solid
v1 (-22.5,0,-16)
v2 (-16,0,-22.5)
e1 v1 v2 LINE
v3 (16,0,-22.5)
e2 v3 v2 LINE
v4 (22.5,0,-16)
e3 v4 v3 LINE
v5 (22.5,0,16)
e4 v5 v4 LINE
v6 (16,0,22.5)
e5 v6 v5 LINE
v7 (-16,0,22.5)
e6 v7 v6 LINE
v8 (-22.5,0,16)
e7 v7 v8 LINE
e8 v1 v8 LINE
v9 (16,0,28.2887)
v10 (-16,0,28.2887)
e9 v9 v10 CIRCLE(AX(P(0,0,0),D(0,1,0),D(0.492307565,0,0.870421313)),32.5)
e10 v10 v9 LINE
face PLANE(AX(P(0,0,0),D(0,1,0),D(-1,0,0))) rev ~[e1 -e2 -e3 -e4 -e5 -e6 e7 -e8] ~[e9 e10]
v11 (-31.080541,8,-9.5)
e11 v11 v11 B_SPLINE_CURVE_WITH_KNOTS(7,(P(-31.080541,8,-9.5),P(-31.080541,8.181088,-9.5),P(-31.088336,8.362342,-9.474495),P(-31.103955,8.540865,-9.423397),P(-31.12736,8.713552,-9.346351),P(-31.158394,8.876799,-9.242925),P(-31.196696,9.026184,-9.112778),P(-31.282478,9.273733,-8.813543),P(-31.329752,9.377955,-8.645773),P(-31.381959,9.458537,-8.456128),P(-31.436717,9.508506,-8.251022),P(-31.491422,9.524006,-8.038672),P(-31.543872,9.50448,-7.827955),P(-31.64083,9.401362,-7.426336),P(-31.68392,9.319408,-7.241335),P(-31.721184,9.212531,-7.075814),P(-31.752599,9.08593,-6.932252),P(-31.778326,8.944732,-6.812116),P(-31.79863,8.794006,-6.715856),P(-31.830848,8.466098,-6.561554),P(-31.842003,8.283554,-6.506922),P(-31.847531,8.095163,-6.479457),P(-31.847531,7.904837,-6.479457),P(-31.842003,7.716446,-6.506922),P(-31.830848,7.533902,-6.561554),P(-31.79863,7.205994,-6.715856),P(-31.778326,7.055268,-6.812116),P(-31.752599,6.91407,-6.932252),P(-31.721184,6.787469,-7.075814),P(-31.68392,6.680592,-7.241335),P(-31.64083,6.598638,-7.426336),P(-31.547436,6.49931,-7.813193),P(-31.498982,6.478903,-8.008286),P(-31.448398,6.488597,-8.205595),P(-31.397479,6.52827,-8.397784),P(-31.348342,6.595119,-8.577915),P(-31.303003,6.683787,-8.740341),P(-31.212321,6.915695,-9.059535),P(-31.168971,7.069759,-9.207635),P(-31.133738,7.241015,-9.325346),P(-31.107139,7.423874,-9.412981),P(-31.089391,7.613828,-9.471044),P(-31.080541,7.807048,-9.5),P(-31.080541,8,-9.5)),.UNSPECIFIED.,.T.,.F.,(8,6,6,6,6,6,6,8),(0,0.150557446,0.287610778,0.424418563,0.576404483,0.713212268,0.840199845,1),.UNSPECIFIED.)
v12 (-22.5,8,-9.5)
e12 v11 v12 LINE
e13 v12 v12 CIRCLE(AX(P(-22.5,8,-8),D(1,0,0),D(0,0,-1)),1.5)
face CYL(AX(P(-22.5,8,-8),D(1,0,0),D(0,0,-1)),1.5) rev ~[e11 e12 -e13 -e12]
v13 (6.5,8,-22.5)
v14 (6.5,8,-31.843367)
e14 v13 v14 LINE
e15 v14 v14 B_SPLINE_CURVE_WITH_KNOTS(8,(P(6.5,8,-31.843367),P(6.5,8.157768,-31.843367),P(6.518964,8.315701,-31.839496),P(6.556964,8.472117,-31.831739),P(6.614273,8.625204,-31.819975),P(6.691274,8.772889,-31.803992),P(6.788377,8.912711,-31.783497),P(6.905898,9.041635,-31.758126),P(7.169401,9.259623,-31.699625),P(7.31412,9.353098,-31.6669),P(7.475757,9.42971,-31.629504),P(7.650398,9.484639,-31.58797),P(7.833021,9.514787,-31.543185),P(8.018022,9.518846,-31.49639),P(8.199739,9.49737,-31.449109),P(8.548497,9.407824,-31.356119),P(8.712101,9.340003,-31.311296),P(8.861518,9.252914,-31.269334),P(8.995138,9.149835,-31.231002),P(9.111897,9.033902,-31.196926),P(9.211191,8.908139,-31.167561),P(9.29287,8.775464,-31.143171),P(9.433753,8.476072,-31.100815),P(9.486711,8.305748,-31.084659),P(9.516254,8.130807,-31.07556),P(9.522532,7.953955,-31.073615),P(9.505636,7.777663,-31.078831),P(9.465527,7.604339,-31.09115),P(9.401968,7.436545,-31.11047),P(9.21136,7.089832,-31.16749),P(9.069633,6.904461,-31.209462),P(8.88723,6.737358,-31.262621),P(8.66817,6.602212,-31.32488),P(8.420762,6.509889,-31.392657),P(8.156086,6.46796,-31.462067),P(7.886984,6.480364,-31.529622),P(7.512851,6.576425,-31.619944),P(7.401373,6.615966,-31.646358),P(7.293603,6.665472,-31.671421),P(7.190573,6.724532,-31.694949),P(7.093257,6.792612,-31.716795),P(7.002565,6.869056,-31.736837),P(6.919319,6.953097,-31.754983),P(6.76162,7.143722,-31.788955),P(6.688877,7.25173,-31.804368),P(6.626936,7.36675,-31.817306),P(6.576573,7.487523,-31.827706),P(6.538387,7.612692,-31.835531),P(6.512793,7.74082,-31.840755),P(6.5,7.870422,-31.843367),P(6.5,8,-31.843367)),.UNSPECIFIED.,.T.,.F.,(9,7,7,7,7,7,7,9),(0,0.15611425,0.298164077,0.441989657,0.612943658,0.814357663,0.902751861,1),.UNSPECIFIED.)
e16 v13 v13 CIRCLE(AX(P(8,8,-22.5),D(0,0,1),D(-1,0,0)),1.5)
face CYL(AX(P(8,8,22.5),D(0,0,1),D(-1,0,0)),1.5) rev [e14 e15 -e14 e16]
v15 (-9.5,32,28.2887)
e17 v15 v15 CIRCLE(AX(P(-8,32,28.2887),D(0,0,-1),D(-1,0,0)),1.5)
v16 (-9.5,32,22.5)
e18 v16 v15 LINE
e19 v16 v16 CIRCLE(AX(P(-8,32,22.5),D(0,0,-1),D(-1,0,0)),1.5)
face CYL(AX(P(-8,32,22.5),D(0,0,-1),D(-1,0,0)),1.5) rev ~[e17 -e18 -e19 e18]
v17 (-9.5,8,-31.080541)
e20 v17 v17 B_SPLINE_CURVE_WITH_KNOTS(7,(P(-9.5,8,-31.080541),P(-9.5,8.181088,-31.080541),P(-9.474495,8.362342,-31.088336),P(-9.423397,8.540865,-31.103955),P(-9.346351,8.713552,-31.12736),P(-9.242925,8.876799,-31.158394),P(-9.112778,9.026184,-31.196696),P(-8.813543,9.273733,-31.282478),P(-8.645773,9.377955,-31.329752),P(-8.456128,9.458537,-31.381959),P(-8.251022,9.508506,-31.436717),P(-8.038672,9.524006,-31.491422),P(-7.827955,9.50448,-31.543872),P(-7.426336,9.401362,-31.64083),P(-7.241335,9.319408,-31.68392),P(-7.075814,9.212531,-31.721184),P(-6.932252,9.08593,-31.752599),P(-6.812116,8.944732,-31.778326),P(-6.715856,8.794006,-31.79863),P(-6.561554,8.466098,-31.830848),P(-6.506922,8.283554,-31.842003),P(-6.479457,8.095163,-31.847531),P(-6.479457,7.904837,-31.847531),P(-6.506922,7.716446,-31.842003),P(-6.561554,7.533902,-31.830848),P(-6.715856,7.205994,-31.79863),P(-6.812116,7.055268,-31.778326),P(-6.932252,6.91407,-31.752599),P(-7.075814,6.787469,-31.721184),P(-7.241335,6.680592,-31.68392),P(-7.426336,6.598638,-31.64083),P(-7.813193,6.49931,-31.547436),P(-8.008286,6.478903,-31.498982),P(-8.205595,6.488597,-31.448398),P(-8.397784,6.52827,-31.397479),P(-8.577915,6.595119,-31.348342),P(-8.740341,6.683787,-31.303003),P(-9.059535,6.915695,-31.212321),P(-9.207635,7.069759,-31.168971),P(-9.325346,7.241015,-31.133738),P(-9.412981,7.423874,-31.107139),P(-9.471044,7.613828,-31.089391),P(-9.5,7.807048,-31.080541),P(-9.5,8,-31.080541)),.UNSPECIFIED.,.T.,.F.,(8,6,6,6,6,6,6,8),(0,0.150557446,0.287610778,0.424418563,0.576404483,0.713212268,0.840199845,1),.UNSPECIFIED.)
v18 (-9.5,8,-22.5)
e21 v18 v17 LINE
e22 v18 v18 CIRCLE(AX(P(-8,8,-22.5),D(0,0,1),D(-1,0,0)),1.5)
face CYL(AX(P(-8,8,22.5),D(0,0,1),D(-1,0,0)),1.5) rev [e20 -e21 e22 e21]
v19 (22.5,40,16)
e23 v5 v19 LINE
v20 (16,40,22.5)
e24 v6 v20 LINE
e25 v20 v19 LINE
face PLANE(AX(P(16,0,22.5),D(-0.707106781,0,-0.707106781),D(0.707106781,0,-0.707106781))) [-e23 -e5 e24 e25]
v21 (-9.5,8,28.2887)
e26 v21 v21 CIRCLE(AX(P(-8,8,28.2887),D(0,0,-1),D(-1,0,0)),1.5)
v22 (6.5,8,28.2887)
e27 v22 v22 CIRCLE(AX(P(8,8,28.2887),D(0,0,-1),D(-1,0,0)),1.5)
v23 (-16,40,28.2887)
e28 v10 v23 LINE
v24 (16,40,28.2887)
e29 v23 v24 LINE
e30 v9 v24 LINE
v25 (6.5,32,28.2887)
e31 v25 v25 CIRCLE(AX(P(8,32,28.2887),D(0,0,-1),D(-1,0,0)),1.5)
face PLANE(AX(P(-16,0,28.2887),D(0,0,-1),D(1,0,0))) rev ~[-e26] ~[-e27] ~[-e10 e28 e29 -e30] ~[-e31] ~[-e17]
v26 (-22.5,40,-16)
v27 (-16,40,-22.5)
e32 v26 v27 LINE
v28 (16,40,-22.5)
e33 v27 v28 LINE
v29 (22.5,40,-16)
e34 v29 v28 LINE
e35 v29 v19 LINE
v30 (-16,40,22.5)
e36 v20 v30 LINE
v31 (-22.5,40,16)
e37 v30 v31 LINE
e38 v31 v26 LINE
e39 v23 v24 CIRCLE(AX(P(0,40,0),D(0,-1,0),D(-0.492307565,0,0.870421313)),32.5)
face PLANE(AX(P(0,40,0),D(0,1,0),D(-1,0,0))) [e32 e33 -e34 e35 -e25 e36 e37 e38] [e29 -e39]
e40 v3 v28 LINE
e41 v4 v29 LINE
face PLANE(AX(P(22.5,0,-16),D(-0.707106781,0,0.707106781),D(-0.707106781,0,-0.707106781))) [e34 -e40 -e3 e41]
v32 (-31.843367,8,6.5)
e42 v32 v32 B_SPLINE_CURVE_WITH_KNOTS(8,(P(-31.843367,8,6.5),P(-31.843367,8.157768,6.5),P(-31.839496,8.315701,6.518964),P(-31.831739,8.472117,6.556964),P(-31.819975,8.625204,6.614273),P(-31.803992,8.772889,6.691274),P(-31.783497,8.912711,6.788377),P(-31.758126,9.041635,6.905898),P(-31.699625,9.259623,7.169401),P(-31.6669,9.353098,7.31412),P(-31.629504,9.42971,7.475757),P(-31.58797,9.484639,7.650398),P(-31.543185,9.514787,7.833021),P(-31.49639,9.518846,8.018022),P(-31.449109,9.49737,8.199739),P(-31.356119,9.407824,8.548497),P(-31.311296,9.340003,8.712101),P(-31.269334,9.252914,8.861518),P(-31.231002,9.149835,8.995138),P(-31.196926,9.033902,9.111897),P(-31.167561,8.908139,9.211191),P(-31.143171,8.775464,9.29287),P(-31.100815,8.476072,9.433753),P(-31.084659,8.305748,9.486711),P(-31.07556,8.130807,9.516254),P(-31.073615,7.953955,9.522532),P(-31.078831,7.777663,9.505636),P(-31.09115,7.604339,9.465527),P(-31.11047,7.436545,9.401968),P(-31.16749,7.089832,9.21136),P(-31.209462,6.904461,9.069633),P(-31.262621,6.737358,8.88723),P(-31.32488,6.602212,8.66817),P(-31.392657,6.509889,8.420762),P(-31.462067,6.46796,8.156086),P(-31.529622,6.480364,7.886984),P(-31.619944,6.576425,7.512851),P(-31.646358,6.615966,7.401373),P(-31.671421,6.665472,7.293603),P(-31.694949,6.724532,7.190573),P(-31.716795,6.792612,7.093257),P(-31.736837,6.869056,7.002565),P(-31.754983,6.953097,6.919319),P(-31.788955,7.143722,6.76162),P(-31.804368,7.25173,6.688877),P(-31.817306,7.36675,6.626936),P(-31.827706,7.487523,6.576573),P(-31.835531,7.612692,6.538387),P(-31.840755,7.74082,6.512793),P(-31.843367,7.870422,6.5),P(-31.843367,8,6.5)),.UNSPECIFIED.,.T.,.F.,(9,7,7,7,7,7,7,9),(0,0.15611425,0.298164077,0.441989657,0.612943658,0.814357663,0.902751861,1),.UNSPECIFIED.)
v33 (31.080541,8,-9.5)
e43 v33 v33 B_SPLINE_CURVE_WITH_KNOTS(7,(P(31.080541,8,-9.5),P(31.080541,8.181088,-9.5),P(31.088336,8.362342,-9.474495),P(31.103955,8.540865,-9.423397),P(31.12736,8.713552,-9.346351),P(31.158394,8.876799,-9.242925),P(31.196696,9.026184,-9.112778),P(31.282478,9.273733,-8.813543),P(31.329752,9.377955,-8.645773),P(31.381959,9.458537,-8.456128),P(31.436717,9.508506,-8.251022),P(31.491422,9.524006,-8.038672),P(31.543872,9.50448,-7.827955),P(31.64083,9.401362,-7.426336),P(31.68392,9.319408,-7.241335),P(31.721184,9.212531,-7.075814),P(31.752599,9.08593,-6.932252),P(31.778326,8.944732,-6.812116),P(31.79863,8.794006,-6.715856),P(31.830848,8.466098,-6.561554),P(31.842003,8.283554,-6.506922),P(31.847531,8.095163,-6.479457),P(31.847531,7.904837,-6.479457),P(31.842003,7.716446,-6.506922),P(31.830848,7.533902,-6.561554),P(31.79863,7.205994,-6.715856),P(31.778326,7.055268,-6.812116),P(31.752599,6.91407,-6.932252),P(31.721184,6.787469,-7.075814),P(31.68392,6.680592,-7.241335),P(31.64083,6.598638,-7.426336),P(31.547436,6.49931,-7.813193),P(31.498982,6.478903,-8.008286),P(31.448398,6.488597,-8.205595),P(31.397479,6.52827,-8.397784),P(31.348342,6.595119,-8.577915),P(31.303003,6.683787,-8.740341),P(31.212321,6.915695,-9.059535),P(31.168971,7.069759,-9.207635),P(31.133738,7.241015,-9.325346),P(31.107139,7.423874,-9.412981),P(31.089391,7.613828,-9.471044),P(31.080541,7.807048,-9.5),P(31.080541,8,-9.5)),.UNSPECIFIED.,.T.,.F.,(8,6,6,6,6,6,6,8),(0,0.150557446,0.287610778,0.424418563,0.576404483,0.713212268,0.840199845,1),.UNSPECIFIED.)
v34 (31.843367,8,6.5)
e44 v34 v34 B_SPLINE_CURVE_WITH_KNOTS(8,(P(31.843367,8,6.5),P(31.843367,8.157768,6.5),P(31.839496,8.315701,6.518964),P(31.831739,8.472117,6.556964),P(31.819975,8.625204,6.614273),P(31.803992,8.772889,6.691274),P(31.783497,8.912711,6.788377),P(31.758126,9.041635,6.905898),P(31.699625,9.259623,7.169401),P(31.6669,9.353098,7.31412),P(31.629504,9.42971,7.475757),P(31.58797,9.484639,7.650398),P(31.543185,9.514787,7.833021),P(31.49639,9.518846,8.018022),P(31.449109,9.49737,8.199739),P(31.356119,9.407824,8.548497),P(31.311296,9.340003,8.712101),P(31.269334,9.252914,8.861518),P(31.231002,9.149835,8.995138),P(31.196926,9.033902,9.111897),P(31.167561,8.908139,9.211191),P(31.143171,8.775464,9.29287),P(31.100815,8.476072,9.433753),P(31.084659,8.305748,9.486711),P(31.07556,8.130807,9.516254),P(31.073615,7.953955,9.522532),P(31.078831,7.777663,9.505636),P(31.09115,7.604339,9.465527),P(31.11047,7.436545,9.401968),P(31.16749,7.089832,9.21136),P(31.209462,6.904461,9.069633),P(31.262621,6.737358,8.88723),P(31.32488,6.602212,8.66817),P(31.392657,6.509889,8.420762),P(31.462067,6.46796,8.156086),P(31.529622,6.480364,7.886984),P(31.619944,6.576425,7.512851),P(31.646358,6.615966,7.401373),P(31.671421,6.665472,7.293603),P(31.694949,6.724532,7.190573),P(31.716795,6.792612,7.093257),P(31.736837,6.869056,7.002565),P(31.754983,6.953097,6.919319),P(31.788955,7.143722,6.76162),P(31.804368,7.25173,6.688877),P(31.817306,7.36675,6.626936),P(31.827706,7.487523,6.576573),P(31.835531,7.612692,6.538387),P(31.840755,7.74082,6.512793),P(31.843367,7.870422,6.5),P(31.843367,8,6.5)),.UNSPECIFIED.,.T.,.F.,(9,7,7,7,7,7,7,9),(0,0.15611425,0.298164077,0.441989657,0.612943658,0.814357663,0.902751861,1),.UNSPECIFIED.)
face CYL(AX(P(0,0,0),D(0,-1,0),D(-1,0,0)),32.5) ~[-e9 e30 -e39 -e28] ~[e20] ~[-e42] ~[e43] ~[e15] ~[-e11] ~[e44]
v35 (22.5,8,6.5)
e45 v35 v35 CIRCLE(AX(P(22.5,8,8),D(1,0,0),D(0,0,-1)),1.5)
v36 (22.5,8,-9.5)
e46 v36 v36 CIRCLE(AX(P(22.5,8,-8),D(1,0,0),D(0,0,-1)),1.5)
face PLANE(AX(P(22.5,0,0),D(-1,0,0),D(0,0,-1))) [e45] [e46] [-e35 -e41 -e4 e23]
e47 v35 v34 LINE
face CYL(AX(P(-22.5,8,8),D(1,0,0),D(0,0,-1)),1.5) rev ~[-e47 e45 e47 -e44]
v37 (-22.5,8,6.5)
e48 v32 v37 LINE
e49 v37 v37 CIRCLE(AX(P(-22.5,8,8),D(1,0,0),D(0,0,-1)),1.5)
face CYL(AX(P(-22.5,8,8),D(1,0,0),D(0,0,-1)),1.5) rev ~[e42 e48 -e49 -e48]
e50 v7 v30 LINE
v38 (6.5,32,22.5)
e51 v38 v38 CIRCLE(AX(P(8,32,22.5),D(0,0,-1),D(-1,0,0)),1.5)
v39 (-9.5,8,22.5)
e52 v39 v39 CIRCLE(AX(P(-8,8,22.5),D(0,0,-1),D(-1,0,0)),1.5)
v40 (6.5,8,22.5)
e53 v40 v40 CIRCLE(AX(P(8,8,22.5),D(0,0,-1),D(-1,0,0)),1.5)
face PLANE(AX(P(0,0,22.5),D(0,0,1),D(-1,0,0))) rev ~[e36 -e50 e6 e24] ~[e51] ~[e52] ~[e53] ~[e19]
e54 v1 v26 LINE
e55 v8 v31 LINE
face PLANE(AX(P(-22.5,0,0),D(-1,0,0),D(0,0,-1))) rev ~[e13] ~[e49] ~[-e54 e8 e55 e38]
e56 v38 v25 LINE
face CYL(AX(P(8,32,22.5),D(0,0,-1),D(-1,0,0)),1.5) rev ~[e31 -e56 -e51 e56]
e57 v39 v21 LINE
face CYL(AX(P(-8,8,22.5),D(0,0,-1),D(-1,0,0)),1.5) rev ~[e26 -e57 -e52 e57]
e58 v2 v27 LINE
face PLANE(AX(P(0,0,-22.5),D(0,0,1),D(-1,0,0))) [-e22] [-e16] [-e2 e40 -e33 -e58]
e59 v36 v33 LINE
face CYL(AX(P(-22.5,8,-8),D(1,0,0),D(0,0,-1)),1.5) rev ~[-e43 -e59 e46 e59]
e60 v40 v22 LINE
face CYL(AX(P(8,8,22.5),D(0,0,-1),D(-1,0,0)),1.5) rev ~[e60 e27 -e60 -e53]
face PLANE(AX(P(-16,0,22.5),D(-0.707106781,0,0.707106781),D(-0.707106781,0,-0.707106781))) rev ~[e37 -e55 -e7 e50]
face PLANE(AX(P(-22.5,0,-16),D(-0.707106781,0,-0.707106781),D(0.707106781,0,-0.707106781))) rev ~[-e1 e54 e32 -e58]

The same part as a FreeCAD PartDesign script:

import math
import FreeCAD as App
import Part
import Sketcher
from FreeCAD import Vector

doc = App.newDocument("Part")
params = doc.addObject("Spreadsheet::Sheet", "Params")
for row, (alias, value) in enumerate([
    ("sketch1_diameter", "65 mm"),
    ("sketch1_width", "32 mm"),
    ("pad1_length", "40 mm"),
    ("sketch2_radius", "32.5 mm"),
    ("sketch2_width", "32 mm"),
    ("pocket1_length", "40 mm"),
    ("sketch3_diameter", "3 mm"),
    ("pocket2_length", "200 mm"),
    ("sketch4_diameter", "3 mm"),
    ("pocket3_length", "200 mm"),
    ("sketch5_diameter", "3 mm"),
    ("pocket4_length", "200 mm"),
], start=1):
    params.set(f"A{row}", alias)
    params.set(f"B{row}", "=" + value)
    params.setAlias(f"B{row}", alias)

body = doc.addObject("PartDesign::Body", "Body")

sketch1 = doc.addObject("Sketcher::SketchObject", "Sketch")
body.addObject(sketch1)
sketch1.AttachmentSupport = (doc.XZ_Plane, [""])
sketch1.MapMode = "FlatFace"
sketch1.addGeometry([
    Part.Circle(Vector(0, 0, 0), Vector(0, 0, 1), 32),
    Part.LineSegment(Vector(-16, -22, 0), Vector(16, -22, 0)),
    Part.LineSegment(Vector(16, -22, 0), Vector(22, -16, 0)),
    Part.LineSegment(Vector(22, -16, 0), Vector(22, 16, 0)),
    Part.LineSegment(Vector(22, 16, 0), Vector(16, 22, 0)),
    Part.LineSegment(Vector(16, 22, 0), Vector(-16, 22, 0)),
    Part.LineSegment(Vector(-16, 22, 0), Vector(-22, 16, 0)),
    Part.LineSegment(Vector(-22, 16, 0), Vector(-22, -16, 0)),
    Part.LineSegment(Vector(-22, -16, 0), Vector(-16, -22, 0)),
], False)
sketch1.addConstraint([
    Sketcher.Constraint("Coincident", 1, 2, 2, 1),
    Sketcher.Constraint("Coincident", 2, 2, 3, 1),
    Sketcher.Constraint("Coincident", 3, 2, 4, 1),
    Sketcher.Constraint("Coincident", 4, 2, 5, 1),
    Sketcher.Constraint("Coincident", 5, 2, 6, 1),
    Sketcher.Constraint("Coincident", 6, 2, 7, 1),
    Sketcher.Constraint("Coincident", 7, 2, 8, 1),
    Sketcher.Constraint("Coincident", 8, 2, 1, 1),
    Sketcher.Constraint("Horizontal", 1),
    Sketcher.Constraint("Vertical", 3),
    Sketcher.Constraint("Horizontal", 5),
    Sketcher.Constraint("Vertical", 7),
    Sketcher.Constraint("Coincident", 0, 3, -1, 1),
    Sketcher.Constraint("Symmetric", 1, 2, 5, 2, -1, 1),
    Sketcher.Constraint("Symmetric", 2, 2, 6, 2, -1, 1),
    Sketcher.Constraint("Perpendicular", 2, 4),
    Sketcher.Constraint("Perpendicular", 6, 8),
    Sketcher.Constraint("Horizontal", 3, 2, 6, 2),
    Sketcher.Constraint("Horizontal", 2, 2, 7, 2),
    Sketcher.Constraint("Vertical", 1, 2, 4, 2),
    Sketcher.Constraint("Equal", 5, 3),
    Sketcher.Constraint("Diameter", 0, 65.0),
    Sketcher.Constraint("DistanceX", 1, 1, 1, 2, 32.0),
    Sketcher.Constraint("DistanceY", 1, 2, 4, 2, 45.0),
])
sketch1.setExpression("Constraints[21]", "Params.sketch1_diameter")
sketch1.setExpression("Constraints[22]", "Params.sketch1_width")
pad1 = doc.addObject("PartDesign::Pad", "Pad")
body.addObject(pad1)
pad1.Profile = sketch1
pad1.setExpression("Length", "Params.pad1_length")
pad1.Reversed = True

sketch2 = doc.addObject("Sketcher::SketchObject", "Sketch001")
body.addObject(sketch2)
sketch2.AttachmentSupport = (doc.XZ_Plane, [""])
sketch2.MapMode = "FlatFace"
sketch2.addGeometry([
    Part.ArcOfCircle(Part.Circle(Vector(0, 0, 0), Vector(0, 0, 1), 33), math.radians(61), math.radians(119)),
    Part.LineSegment(Vector(-16, 28, 0), Vector(16, 28, 0)),
], False)
sketch2.addConstraint([
    Sketcher.Constraint("Coincident", 0, 1, 1, 2),
    Sketcher.Constraint("Coincident", 1, 1, 0, 2),
    Sketcher.Constraint("Horizontal", 1),
    Sketcher.Constraint("Coincident", 0, 3, -1, 1),
    Sketcher.Constraint("Radius", 0, 32.5),
    Sketcher.Constraint("DistanceX", 1, 1, 1, 2, 32.0),
])
sketch2.setExpression("Constraints[4]", "Params.sketch2_radius")
sketch2.setExpression("Constraints[5]", "Params.sketch2_width")
pocket1 = doc.addObject("PartDesign::Pocket", "Pocket")
body.addObject(pocket1)
pocket1.Profile = sketch2
pocket1.setExpression("Length", "Params.pocket1_length")

sketch3 = doc.addObject("Sketcher::SketchObject", "Sketch002")
body.addObject(sketch3)
sketch3.AttachmentSupport = (doc.YZ_Plane, [""])
sketch3.MapMode = "FlatFace"
sketch3.AttachmentOffset = App.Placement(Vector(0, 0, -22.5), App.Rotation())
sketch3.addGeometry([
    Part.Circle(Vector(8, 8, 0), Vector(0, 0, 1), 1.5),
    Part.Circle(Vector(8, -8, 0), Vector(0, 0, 1), 1.5),
], False)
sketch3.addConstraint([
    Sketcher.Constraint("Equal", 0, 1),
    Sketcher.Constraint("Symmetric", 0, 3, 1, 3, -1),
    Sketcher.Constraint("Diameter", 0, 3.0),
    Sketcher.Constraint("DistanceX", -1, 1, 0, 3, 8.0),
    Sketcher.Constraint("DistanceY", -1, 1, 0, 3, 8.0),
])
sketch3.setExpression("Constraints[2]", "Params.sketch3_diameter")
pocket2 = doc.addObject("PartDesign::Pocket", "Pocket001")
body.addObject(pocket2)
pocket2.Profile = sketch3
pocket2.setExpression("Length", "Params.pocket2_length")
pocket2.Midplane = True

sketch4 = doc.addObject("Sketcher::SketchObject", "Sketch003")
body.addObject(sketch4)
sketch4.AttachmentSupport = (doc.XY_Plane, [""])
sketch4.MapMode = "FlatFace"
sketch4.AttachmentOffset = App.Placement(Vector(0, 0, 22.5), App.Rotation())
sketch4.addGeometry([
    Part.Circle(Vector(8, 8, 0), Vector(0, 0, 1), 1.5),
    Part.Circle(Vector(-8, 8, 0), Vector(0, 0, 1), 1.5),
], False)
sketch4.addConstraint([
    Sketcher.Constraint("Equal", 0, 1),
    Sketcher.Constraint("Symmetric", 0, 3, 1, 3, -2),
    Sketcher.Constraint("Diameter", 0, 3.0),
    Sketcher.Constraint("DistanceX", -1, 1, 0, 3, 8.0),
    Sketcher.Constraint("DistanceY", -1, 1, 0, 3, 8.0),
])
sketch4.setExpression("Constraints[2]", "Params.sketch4_diameter")
pocket3 = doc.addObject("PartDesign::Pocket", "Pocket002")
body.addObject(pocket3)
pocket3.Profile = sketch4
pocket3.setExpression("Length", "Params.pocket3_length")
pocket3.Midplane = True

sketch5 = doc.addObject("Sketcher::SketchObject", "Sketch004")
body.addObject(sketch5)
sketch5.AttachmentSupport = (doc.XY_Plane, [""])
sketch5.MapMode = "FlatFace"
sketch5.AttachmentOffset = App.Placement(Vector(0, 0, 22.5), App.Rotation())
sketch5.addGeometry([
    Part.Circle(Vector(8, 32, 0), Vector(0, 0, 1), 1.5),
    Part.Circle(Vector(-8, 32, 0), Vector(0, 0, 1), 1.5),
], False)
sketch5.addConstraint([
    Sketcher.Constraint("Equal", 0, 1),
    Sketcher.Constraint("Symmetric", 0, 3, 1, 3, -2),
    Sketcher.Constraint("Diameter", 0, 3.0),
    Sketcher.Constraint("DistanceX", -1, 1, 0, 3, 8.0),
    Sketcher.Constraint("DistanceY", -1, 1, 0, 3, 32.0),
])
sketch5.setExpression("Constraints[2]", "Params.sketch5_diameter")
pocket4 = doc.addObject("PartDesign::Pocket", "Pocket003")
body.addObject(pocket4)
pocket4.Profile = sketch5
pocket4.setExpression("Length", "Params.pocket4_length")
pocket4.Reversed = True

doc.recompute()
